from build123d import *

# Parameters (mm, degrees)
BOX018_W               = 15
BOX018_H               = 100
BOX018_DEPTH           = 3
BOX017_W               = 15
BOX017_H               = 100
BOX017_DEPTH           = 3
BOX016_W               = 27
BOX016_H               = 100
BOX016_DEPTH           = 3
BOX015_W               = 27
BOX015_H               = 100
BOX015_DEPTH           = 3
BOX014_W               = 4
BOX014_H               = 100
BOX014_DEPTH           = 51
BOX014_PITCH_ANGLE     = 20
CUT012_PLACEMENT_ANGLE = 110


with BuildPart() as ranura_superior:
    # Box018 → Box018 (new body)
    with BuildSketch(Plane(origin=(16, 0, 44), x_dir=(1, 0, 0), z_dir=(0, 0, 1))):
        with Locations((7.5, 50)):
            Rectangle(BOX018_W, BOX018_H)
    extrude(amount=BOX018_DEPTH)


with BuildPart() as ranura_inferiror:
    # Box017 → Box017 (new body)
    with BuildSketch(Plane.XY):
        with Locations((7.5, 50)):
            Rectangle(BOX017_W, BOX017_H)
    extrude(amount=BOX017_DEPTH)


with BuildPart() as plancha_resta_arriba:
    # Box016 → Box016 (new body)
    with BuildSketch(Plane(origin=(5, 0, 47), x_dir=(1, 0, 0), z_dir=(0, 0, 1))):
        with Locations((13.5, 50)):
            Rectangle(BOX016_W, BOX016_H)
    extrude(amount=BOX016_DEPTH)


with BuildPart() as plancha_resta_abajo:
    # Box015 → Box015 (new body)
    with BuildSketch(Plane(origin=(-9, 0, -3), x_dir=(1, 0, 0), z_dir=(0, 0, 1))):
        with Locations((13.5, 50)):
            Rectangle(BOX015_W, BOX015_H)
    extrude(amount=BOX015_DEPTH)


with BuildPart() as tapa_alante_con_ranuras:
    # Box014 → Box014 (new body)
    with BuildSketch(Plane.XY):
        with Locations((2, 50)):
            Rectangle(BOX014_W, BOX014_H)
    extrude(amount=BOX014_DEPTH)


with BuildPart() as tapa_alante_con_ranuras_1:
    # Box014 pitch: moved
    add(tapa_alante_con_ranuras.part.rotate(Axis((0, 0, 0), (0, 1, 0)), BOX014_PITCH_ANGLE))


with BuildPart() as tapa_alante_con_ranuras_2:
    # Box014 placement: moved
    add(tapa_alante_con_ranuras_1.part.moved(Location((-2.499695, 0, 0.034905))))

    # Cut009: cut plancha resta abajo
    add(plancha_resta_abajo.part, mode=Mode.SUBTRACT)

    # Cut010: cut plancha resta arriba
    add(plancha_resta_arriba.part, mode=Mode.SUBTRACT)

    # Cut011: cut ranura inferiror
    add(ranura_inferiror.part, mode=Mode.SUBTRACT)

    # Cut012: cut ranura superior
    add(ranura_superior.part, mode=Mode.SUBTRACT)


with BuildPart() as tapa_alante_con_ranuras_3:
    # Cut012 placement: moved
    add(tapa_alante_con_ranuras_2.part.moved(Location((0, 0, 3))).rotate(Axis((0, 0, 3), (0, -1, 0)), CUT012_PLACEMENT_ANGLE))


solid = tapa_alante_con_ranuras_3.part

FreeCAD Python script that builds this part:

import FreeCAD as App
import Part
import Sketcher
Q = App.Units.Quantity


def add_polygon(sketch, points):
    """Adds a closed chain of lines whose ends are joined by coincident constraints."""
    first, n = sketch.GeometryCount, len(points)
    for a, b in zip(points, points[1:] + points[:1]):
        sketch.addGeometry(Part.LineSegment(App.Vector(*a, 0), App.Vector(*b, 0)), False)
    for i in range(n):
        sketch.addConstraint(Sketcher.Constraint("Coincident", first + i, 2, first + (i + 1) % n, 1))

doc = App.newDocument("Part")
body = doc.addObject("PartDesign::Body", "Body")

# Sketch on XY plane
sketch1 = body.newObject("Sketcher::SketchObject", "Sketch")
sketch1.AttachmentSupport = (doc.getObject("XY_Plane"), [""])
sketch1.MapMode = "FlatFace"
sketch1.AttachmentOffset = App.Placement(App.Vector(0, 0, 44), App.Rotation())
add_polygon(sketch1, [(16, 100), (16, 0), (31, 0), (31, 100)])  # lines 0-3
sketch1.addConstraint(Sketcher.Constraint("Vertical", 0))
sketch1.addConstraint(Sketcher.Constraint("Horizontal", 1))
sketch1.addConstraint(Sketcher.Constraint("Vertical", 2))
sketch1.addConstraint(Sketcher.Constraint("Horizontal", 3))
sketch1.addConstraint(Sketcher.Constraint("PointOnObject", 0, 2, -1))
sketch1.addConstraint(Sketcher.Constraint("DistanceX", 1, 1, 1, 2, Q("15 mm")))
sketch1.addConstraint(Sketcher.Constraint("DistanceY", 0, 2, 0, 1, Q("100 mm")))
sketch1.addConstraint(Sketcher.Constraint("DistanceX", -1, 1, 0, 2, Q("16 mm")))
pad1 = body.newObject("PartDesign::Pad", "Pad")
pad1.Profile = sketch1
pad1.Length = 3
body2 = doc.addObject("PartDesign::Body", "Body001")

# Sketch on XY plane
sketch2 = body2.newObject("Sketcher::SketchObject", "Sketch001")
sketch2.AttachmentSupport = (doc.getObject("XY_Plane001"), [""])
sketch2.MapMode = "FlatFace"
add_polygon(sketch2, [(0, 100), (0, 0), (15, 0), (15, 100)])  # lines 0-3
sketch2.addConstraint(Sketcher.Constraint("Vertical", 0))
sketch2.addConstraint(Sketcher.Constraint("Horizontal", 1))
sketch2.addConstraint(Sketcher.Constraint("Vertical", 2))
sketch2.addConstraint(Sketcher.Constraint("Horizontal", 3))
sketch2.addConstraint(Sketcher.Constraint("Coincident", 0, 2, -1, 1))
sketch2.addConstraint(Sketcher.Constraint("DistanceX", 1, 1, 1, 2, Q("15 mm")))
sketch2.addConstraint(Sketcher.Constraint("DistanceY", 0, 2, 0, 1, Q("100 mm")))
pad2 = body2.newObject("PartDesign::Pad", "Pad001")
pad2.Profile = sketch2
pad2.Length = 3
body3 = doc.addObject("PartDesign::Body", "Body002")

# Sketch on XY plane
sketch3 = body3.newObject("Sketcher::SketchObject", "Sketch002")
sketch3.AttachmentSupport = (doc.getObject("XY_Plane002"), [""])
sketch3.MapMode = "FlatFace"
sketch3.AttachmentOffset = App.Placement(App.Vector(0, 0, 47), App.Rotation())
add_polygon(sketch3, [(5, 100), (5, 0), (32, 0), (32, 100)])  # lines 0-3
sketch3.addConstraint(Sketcher.Constraint("Vertical", 0))
sketch3.addConstraint(Sketcher.Constraint("Horizontal", 1))
sketch3.addConstraint(Sketcher.Constraint("Vertical", 2))
sketch3.addConstraint(Sketcher.Constraint("Horizontal", 3))
sketch3.addConstraint(Sketcher.Constraint("PointOnObject", 0, 2, -1))
sketch3.addConstraint(Sketcher.Constraint("DistanceX", 1, 1, 1, 2, Q("27 mm")))
sketch3.addConstraint(Sketcher.Constraint("DistanceY", 0, 2, 0, 1, Q("100 mm")))
sketch3.addConstraint(Sketcher.Constraint("DistanceX", -1, 1, 0, 2, Q("5 mm")))
pad3 = body3.newObject("PartDesign::Pad", "Pad002")
pad3.Profile = sketch3
pad3.Length = 3
body4 = doc.addObject("PartDesign::Body", "Body003")

# Sketch on XY plane
sketch4 = body4.newObject("Sketcher::SketchObject", "Sketch003")
sketch4.AttachmentSupport = (doc.getObject("XY_Plane003"), [""])
sketch4.MapMode = "FlatFace"
sketch4.AttachmentOffset = App.Placement(App.Vector(0, 0, -3), App.Rotation())
add_polygon(sketch4, [(-9, 100), (-9, 0), (18, 0), (18, 100)])  # lines 0-3
sketch4.addConstraint(Sketcher.Constraint("Vertical", 0))
sketch4.addConstraint(Sketcher.Constraint("Horizontal", 1))
sketch4.addConstraint(Sketcher.Constraint("Vertical", 2))
sketch4.addConstraint(Sketcher.Constraint("Horizontal", 3))
sketch4.addConstraint(Sketcher.Constraint("PointOnObject", 0, 2, -1))
sketch4.addConstraint(Sketcher.Constraint("DistanceX", 1, 1, 1, 2, Q("27 mm")))
sketch4.addConstraint(Sketcher.Constraint("DistanceY", 0, 2, 0, 1, Q("100 mm")))
sketch4.addConstraint(Sketcher.Constraint("DistanceX", 0, 2, -1, 1, Q("9 mm")))
pad4 = body4.newObject("PartDesign::Pad", "Pad003")
pad4.Profile = sketch4
pad4.Length = 3
body5 = doc.addObject("PartDesign::Body", "Body004")

# Sketch on XY plane
sketch5 = body5.newObject("Sketcher::SketchObject", "Sketch004")
sketch5.AttachmentSupport = (doc.getObject("XY_Plane004"), [""])
sketch5.MapMode = "FlatFace"
add_polygon(sketch5, [(0, 100), (0, 0), (4, 0), (4, 100)])  # lines 0-3
sketch5.addConstraint(Sketcher.Constraint("Vertical", 0))
sketch5.addConstraint(Sketcher.Constraint("Horizontal", 1))
sketch5.addConstraint(Sketcher.Constraint("Vertical", 2))
sketch5.addConstraint(Sketcher.Constraint("Horizontal", 3))
sketch5.addConstraint(Sketcher.Constraint("Coincident", 0, 2, -1, 1))
sketch5.addConstraint(Sketcher.Constraint("DistanceX", 1, 1, 1, 2, Q("4 mm")))
sketch5.addConstraint(Sketcher.Constraint("DistanceY", 0, 2, 0, 1, Q("100 mm")))
pad5 = body5.newObject("PartDesign::Pad", "Pad004")
pad5.Profile = sketch5
pad5.Length = 51
body6 = doc.addObject("PartDesign::Body", "Body005")
doc.recompute()

body5.Placement = App.Placement(App.Vector(0, 0, 0), App.Rotation(App.Vector(0, 1, 0), 20))
boolean = body6.newObject("PartDesign::Boolean", "Boolean")
boolean.Type = "Fuse"
boolean.addObjects([body5])
body7 = doc.addObject("PartDesign::Body", "Body006")
doc.recompute()

body6.Placement = App.Placement(App.Vector(-2.499695, 0, 0.034905), App.Rotation(App.Vector(0, 0, 1), 0))
boolean2 = body7.newObject("PartDesign::Boolean", "Boolean001")
boolean2.Type = "Fuse"
boolean2.addObjects([body6])
doc.recompute()

boolean3 = body7.newObject("PartDesign::Boolean", "Boolean002")
boolean3.Type = "Cut"
boolean3.addObjects([body4])
doc.recompute()

boolean4 = body7.newObject("PartDesign::Boolean", "Boolean003")
boolean4.Type = "Cut"
boolean4.addObjects([body3])
doc.recompute()

boolean5 = body7.newObject("PartDesign::Boolean", "Boolean004")
boolean5.Type = "Cut"
boolean5.addObjects([body2])
doc.recompute()

boolean6 = body7.newObject("PartDesign::Boolean", "Boolean005")
boolean6.Type = "Cut"
boolean6.addObjects([body])
body8 = doc.addObject("PartDesign::Body", "Body007")
doc.recompute()

body7.Placement = App.Placement(App.Vector(0, 0, 3), App.Rotation(App.Vector(0, -1, 0), 110))
boolean7 = body8.newObject("PartDesign::Boolean", "Boolean006")
boolean7.Type = "Fuse"
boolean7.addObjects([body7])

doc.recompute()
